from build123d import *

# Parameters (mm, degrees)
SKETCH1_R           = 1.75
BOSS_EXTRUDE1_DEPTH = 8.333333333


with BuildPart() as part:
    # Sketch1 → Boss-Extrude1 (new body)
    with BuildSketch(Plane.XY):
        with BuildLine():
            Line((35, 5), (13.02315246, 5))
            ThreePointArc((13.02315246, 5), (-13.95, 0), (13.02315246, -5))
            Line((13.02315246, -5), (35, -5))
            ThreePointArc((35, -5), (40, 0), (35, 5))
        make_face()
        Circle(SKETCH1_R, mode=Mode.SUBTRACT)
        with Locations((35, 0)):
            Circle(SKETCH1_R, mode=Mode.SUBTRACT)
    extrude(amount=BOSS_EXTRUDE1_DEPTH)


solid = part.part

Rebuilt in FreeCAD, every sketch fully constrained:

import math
import FreeCAD as App
import Part
import Sketcher

V = App.Vector
Q = App.Units.Quantity

doc = App.newDocument("Part")
params = doc.addObject("Spreadsheet::Sheet", "Params")
for row, (alias, value) in enumerate([
    ("sketch1_radius", "5 mm"),
    ("sketch1_diameter", "3.5 mm"),
    ("sketch1_radius2", "13.95 mm"),
    ("pad1_length", "8.333333 mm"),
], start=1):
    params.set(f"A{row}", alias)
    params.set(f"B{row}", "=" + value)
    params.setAlias(f"B{row}", alias)

body = doc.addObject("PartDesign::Body", "Body")

# Sketch on XY plane
sketch1 = body.newObject("Sketcher::SketchObject", "Sketch")
sketch1.AttachmentSupport = (doc.getObject("XY_Plane"), [""])
sketch1.MapMode = "FlatFace"
sketch1.addGeometry(Part.LineSegment(V(35, 5, 0), V(13.023152, 5, 0)), False)
sketch1.addGeometry(Part.ArcOfCircle(Part.Circle(V(0, 0, 0), V(0, 0, 1), 13.95), math.radians(21.003375), math.radians(338.996625)), False)
sketch1.addGeometry(Part.LineSegment(V(13.023152, -5, 0), V(35, -5, 0)), False)
sketch1.addGeometry(Part.ArcOfCircle(Part.Circle(V(35, 0, 0), V(0, 0, 1), 5), math.radians(-90), math.radians(90)), False)
sketch1.addGeometry(Part.Circle(V(0, 0, 0), V(0, 0, 1), 1.75), False)
sketch1.addGeometry(Part.Circle(V(35, 0, 0), V(0, 0, 1), 1.75), False)
sketch1.addConstraint(Sketcher.Constraint("Coincident", 0, 2, 1, 1))
sketch1.addConstraint(Sketcher.Constraint("Coincident", 1, 2, 2, 1))
sketch1.addConstraint(Sketcher.Constraint("Tangent", 2, 2, 3, 1))
sketch1.addConstraint(Sketcher.Constraint("Tangent", 3, 2, 0, 1))
sketch1.addConstraint(Sketcher.Constraint("Horizontal", 0))
sketch1.addConstraint(Sketcher.Constraint("Horizontal", 2))
sketch1.addConstraint(Sketcher.Constraint("Coincident", 1, 3, -1, 1))
sketch1.addConstraint(Sketcher.Constraint("Coincident", 4, 3, -1, 1))
sketch1.addConstraint(Sketcher.Constraint("Coincident", 5, 3, 3, 3))
sketch1.addConstraint(Sketcher.Constraint("Equal", 4, 5))
sketch1.addConstraint(Sketcher.Constraint("PointOnObject", 3, 3, -1))
sketch1.addConstraint(Sketcher.Constraint("Radius", 3, Q("5 mm")))
sketch1.addConstraint(Sketcher.Constraint("Diameter", 4, Q("3.5 mm")))
sketch1.addConstraint(Sketcher.Constraint("Radius", 1, Q("13.95 mm")))
sketch1.addConstraint(Sketcher.Constraint("DistanceX", -1, 1, 3, 3, Q("35 mm")))
sketch1.setExpression("Constraints[11]", "Params.sketch1_radius")
sketch1.setExpression("Constraints[12]", "Params.sketch1_diameter")
sketch1.setExpression("Constraints[13]", "Params.sketch1_radius2")
pad1 = body.newObject("PartDesign::Pad", "Pad")
pad1.Profile = sketch1
pad1.setExpression("Length", "Params.pad1_length")

doc.recompute()
